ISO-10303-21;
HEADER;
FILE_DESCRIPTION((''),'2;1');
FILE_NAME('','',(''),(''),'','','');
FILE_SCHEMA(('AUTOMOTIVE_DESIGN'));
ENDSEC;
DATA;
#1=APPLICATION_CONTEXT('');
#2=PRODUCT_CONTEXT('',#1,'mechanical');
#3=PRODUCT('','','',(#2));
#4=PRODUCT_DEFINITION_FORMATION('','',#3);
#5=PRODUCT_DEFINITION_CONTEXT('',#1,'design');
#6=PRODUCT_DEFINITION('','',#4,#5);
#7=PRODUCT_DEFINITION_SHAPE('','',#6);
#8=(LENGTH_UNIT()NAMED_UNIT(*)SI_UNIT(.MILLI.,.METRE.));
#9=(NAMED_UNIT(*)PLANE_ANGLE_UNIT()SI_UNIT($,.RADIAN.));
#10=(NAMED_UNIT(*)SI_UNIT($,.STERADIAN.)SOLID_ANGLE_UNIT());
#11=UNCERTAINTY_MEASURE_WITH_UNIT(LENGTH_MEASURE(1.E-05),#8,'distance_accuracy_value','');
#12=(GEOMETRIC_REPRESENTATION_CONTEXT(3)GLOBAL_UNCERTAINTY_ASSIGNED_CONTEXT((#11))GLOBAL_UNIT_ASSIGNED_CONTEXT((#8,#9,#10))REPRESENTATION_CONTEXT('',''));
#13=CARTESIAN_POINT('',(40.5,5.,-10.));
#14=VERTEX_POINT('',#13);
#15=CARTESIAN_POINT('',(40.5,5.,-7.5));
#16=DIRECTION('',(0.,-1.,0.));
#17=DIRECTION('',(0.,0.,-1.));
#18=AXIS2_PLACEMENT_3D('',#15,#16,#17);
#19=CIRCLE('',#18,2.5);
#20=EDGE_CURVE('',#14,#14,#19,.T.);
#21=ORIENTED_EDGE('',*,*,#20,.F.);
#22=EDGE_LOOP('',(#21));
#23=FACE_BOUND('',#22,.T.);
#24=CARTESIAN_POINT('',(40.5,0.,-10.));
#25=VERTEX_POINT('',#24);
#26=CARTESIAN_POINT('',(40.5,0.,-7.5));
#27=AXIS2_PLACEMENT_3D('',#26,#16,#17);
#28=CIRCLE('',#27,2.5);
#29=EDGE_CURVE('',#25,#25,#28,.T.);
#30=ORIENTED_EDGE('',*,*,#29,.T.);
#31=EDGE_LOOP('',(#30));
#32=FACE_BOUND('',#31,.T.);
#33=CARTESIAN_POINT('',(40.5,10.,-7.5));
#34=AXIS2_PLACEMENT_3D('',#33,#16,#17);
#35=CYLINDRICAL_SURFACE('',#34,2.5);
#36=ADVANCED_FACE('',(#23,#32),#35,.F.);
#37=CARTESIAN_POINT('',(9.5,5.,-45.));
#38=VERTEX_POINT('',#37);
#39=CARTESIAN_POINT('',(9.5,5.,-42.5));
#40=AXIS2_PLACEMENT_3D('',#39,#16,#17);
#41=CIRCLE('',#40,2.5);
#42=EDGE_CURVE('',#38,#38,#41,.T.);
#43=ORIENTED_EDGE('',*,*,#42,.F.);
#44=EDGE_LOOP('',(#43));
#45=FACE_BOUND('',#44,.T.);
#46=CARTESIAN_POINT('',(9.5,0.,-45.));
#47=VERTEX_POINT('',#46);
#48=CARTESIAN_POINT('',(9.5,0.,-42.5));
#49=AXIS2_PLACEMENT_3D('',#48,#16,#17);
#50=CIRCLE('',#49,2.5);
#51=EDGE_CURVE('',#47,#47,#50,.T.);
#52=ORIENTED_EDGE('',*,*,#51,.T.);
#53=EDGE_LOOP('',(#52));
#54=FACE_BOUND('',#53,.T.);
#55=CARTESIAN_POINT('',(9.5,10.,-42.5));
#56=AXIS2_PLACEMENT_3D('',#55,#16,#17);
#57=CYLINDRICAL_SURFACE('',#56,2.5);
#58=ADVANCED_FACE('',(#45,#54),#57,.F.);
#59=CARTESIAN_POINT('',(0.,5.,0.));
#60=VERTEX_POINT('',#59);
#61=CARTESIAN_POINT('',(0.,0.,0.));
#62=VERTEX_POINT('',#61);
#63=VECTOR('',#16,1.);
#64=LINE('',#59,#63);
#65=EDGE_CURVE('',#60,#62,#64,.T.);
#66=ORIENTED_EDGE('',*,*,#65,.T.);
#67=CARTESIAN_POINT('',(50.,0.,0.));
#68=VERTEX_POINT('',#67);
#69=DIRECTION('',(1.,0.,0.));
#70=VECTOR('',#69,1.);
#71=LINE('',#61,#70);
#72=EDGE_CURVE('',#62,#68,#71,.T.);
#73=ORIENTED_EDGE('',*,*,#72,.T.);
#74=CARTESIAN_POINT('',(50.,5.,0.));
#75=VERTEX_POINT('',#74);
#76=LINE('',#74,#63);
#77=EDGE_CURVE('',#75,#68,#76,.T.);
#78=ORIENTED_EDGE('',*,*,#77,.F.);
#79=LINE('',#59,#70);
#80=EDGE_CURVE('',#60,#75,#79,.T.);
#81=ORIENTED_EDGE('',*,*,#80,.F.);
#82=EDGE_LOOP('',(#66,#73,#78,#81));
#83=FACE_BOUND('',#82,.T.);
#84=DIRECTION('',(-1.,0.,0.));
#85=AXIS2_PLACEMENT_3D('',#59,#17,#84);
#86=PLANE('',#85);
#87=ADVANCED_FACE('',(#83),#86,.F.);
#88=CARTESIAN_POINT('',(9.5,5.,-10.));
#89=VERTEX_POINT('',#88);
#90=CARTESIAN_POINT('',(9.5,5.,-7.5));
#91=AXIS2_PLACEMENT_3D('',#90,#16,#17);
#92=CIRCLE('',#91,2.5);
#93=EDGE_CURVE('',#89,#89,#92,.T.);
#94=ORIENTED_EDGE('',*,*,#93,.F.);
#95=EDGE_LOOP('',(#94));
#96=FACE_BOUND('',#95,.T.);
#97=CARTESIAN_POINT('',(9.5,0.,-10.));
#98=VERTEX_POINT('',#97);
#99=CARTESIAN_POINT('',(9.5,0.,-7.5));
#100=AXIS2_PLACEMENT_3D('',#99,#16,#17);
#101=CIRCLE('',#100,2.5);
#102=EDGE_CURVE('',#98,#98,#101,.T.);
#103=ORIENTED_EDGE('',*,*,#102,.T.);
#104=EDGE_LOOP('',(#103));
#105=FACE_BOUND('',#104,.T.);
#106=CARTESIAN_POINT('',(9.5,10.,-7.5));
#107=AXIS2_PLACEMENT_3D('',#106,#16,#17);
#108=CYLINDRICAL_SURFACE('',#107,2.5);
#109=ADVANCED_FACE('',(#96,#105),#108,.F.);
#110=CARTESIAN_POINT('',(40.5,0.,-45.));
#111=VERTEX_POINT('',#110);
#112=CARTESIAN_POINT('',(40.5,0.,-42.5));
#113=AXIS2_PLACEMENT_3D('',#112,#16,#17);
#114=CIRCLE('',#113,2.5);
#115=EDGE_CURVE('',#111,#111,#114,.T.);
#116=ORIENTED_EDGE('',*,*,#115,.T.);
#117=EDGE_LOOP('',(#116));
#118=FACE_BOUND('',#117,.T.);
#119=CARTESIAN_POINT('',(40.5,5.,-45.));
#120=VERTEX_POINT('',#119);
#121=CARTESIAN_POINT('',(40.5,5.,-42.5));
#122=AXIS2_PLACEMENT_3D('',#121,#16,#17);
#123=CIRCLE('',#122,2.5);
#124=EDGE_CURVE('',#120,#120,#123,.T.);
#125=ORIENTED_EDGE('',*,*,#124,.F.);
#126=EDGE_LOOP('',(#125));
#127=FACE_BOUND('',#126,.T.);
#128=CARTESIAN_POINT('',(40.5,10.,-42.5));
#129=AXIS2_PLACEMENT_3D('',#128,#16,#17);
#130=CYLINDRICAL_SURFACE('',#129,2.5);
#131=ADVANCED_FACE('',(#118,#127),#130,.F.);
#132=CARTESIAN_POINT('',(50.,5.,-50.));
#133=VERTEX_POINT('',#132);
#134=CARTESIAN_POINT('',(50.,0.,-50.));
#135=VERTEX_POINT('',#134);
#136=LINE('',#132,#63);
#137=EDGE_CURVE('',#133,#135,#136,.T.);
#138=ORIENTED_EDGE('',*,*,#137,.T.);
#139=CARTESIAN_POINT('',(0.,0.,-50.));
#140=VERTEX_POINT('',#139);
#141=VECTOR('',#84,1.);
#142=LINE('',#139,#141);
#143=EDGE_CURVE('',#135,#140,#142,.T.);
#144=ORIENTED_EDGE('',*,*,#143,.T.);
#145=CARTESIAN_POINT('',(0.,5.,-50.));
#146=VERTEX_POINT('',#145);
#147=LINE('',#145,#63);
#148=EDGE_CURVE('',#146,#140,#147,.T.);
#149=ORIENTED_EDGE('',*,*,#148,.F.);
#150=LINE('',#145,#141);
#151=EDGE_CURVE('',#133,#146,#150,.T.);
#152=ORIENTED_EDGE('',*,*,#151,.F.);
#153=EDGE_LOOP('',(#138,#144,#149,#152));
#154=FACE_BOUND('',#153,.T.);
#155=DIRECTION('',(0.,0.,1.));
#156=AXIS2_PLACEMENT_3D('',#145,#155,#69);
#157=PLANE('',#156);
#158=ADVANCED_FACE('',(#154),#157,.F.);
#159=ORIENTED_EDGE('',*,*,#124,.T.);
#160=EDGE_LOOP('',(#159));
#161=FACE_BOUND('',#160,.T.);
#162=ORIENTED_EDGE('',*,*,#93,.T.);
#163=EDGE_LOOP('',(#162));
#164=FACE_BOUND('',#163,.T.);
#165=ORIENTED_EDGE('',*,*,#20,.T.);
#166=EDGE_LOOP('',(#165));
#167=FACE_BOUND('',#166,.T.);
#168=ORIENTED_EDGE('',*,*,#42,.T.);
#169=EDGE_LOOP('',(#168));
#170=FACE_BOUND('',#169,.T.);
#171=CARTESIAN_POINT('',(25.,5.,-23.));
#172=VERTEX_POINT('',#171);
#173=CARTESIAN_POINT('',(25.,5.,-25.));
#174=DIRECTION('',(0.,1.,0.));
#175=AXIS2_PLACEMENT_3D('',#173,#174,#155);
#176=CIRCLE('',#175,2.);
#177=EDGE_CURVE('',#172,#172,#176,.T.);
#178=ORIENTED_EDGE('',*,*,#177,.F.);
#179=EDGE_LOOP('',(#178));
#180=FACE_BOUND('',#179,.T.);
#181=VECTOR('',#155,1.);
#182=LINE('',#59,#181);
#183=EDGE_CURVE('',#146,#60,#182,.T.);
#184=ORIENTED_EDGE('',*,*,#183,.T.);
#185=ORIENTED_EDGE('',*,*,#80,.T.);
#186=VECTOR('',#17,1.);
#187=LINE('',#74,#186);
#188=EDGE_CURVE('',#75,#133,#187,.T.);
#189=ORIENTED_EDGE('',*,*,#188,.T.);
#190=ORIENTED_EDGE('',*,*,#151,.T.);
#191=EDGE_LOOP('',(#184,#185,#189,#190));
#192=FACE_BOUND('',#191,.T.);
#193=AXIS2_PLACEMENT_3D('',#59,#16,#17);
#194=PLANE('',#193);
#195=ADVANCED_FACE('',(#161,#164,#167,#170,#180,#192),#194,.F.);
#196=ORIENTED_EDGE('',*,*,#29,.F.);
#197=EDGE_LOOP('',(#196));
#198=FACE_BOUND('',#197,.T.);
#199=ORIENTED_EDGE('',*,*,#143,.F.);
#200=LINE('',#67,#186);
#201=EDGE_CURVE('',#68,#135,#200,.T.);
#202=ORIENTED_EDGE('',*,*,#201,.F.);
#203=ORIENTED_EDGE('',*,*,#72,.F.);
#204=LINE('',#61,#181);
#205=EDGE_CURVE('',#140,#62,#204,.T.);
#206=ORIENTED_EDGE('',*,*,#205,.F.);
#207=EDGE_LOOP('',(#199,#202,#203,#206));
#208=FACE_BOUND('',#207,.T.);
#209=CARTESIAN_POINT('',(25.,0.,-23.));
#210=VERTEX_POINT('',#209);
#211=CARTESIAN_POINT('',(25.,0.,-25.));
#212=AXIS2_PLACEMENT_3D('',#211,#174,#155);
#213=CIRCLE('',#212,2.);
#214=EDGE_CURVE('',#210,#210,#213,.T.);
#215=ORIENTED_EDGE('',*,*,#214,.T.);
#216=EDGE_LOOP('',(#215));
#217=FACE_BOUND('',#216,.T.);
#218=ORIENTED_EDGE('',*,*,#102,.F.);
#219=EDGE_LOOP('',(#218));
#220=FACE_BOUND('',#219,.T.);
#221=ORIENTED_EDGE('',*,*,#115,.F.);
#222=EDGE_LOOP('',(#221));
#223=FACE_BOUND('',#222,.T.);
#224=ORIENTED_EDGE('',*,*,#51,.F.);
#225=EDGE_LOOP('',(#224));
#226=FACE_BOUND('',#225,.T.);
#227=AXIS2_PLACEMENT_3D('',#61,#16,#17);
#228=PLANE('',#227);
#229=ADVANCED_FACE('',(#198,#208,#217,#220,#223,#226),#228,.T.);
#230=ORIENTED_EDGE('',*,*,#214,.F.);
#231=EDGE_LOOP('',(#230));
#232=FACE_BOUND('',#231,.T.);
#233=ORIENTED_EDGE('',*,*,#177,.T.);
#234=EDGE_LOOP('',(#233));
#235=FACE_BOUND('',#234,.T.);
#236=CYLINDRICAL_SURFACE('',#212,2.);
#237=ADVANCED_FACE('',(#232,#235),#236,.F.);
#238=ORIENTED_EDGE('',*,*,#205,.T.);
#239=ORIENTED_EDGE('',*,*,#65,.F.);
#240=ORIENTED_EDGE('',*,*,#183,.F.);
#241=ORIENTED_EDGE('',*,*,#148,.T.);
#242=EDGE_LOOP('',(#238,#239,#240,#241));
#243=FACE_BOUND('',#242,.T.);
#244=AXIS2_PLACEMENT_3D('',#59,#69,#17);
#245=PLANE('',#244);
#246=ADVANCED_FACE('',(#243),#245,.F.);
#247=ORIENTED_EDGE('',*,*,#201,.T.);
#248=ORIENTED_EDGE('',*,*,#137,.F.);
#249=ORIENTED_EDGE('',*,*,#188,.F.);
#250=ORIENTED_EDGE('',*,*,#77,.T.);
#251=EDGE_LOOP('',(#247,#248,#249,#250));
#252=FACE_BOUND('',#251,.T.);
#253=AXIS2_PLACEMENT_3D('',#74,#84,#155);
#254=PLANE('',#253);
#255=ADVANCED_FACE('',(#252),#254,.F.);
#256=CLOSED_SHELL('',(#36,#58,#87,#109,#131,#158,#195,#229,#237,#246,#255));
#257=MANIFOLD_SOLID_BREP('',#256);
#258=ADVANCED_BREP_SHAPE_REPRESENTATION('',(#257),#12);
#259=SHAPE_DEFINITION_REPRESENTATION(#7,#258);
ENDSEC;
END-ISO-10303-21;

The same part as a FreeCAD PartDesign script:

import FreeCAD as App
import Part
import Sketcher

V = App.Vector

doc = App.newDocument("Part")
body = doc.addObject("PartDesign::Body", "Body")

# Sketch on XZ plane
sketch1 = body.newObject("Sketcher::SketchObject", "Sketch")
sketch1.AttachmentSupport = (doc.getObject("XZ_Plane"), [""])
sketch1.MapMode = "FlatFace"
sketch1.addGeometry([
    Part.LineSegment(V(0, -50, 0), V(0, 0, 0)),
    Part.LineSegment(V(0, 0, 0), V(50, 0, 0)),
    Part.LineSegment(V(50, 0, 0), V(50, -50, 0)),
    Part.LineSegment(V(50, -50, 0), V(0, -50, 0)),
], False)
sketch1.addConstraint([
    Sketcher.Constraint("Coincident", 0, 2, 1, 1),
    Sketcher.Constraint("Coincident", 1, 2, 2, 1),
    Sketcher.Constraint("Coincident", 2, 2, 3, 1),
    Sketcher.Constraint("Coincident", 3, 2, 0, 1),
    Sketcher.Constraint("Vertical", 0),
    Sketcher.Constraint("Horizontal", 1),
    Sketcher.Constraint("Vertical", 2),
    Sketcher.Constraint("Horizontal", 3),
    Sketcher.Constraint("Coincident", 0, 2, -1, 1),
    Sketcher.Constraint("Equal", 3, 0),
    Sketcher.Constraint("DistanceX", 1, 1, 1, 2, 50.0),
])
pad1 = body.newObject("PartDesign::Pad", "Pad")
pad1.Profile = sketch1
pad1.Length = 5
pad1.Reversed = True

# Sketch on XZ plane
sketch2 = body.newObject("Sketcher::SketchObject", "Sketch001")
sketch2.AttachmentSupport = (doc.getObject("XZ_Plane"), [""])
sketch2.MapMode = "FlatFace"
sketch2.AttachmentOffset = App.Placement(V(0, 0, -5), App.Rotation())
sketch2.addGeometry(Part.Circle(V(25, -25, 0), V(0, 0, 1), 2), False)
sketch2.addConstraint([
    Sketcher.Constraint("Diameter", 0, 4.0),
    Sketcher.Constraint("DistanceX", -1, 1, 0, 3, 25.0),
    Sketcher.Constraint("DistanceY", 0, 3, -1, 1, 25.0),
])
pocket1 = body.newObject("PartDesign::Pocket", "Pocket")
pocket1.Profile = sketch2
pocket1.Length = 5
pocket1.Reversed = True

# Sketch on XZ plane
sketch3 = body.newObject("Sketcher::SketchObject", "Sketch002")
sketch3.AttachmentSupport = (doc.getObject("XZ_Plane"), [""])
sketch3.MapMode = "FlatFace"
sketch3.addGeometry([
    Part.Circle(V(40.5, -42.5, 0), V(0, 0, 1), 2.5),
    Part.Circle(V(9.5, -42.5, 0), V(0, 0, 1), 2.5),
    Part.Circle(V(9.5, -7.5, 0), V(0, 0, 1), 2.5),
    Part.Circle(V(40.5, -7.5, 0), V(0, 0, 1), 2.5),
], False)
sketch3.addConstraint([
    Sketcher.Constraint("Equal", 0, 1),
    Sketcher.Constraint("Equal", 1, 2),
    Sketcher.Constraint("Equal", 2, 3),
    Sketcher.Constraint("Horizontal", 0, 3, 1, 3),
    Sketcher.Constraint("Horizontal", 2, 3, 3, 3),
    Sketcher.Constraint("Vertical", 1, 3, 2, 3),
    Sketcher.Constraint("Vertical", 0, 3, 3, 3),
    Sketcher.Constraint("Diameter", 0, 5.0),
    Sketcher.Constraint("DistanceX", 1, 3, 0, 3, 31.0),
    Sketcher.Constraint("DistanceY", 1, 3, 2, 3, 35.0),
    Sketcher.Constraint("DistanceX", -1, 1, 0, 3, 40.5),
    Sketcher.Constraint("DistanceY", 0, 3, -1, 1, 42.5),
])
pocket2 = body.newObject("PartDesign::Pocket", "Pocket001")
pocket2.Profile = sketch3
pocket2.Length = 10

doc.recompute()
